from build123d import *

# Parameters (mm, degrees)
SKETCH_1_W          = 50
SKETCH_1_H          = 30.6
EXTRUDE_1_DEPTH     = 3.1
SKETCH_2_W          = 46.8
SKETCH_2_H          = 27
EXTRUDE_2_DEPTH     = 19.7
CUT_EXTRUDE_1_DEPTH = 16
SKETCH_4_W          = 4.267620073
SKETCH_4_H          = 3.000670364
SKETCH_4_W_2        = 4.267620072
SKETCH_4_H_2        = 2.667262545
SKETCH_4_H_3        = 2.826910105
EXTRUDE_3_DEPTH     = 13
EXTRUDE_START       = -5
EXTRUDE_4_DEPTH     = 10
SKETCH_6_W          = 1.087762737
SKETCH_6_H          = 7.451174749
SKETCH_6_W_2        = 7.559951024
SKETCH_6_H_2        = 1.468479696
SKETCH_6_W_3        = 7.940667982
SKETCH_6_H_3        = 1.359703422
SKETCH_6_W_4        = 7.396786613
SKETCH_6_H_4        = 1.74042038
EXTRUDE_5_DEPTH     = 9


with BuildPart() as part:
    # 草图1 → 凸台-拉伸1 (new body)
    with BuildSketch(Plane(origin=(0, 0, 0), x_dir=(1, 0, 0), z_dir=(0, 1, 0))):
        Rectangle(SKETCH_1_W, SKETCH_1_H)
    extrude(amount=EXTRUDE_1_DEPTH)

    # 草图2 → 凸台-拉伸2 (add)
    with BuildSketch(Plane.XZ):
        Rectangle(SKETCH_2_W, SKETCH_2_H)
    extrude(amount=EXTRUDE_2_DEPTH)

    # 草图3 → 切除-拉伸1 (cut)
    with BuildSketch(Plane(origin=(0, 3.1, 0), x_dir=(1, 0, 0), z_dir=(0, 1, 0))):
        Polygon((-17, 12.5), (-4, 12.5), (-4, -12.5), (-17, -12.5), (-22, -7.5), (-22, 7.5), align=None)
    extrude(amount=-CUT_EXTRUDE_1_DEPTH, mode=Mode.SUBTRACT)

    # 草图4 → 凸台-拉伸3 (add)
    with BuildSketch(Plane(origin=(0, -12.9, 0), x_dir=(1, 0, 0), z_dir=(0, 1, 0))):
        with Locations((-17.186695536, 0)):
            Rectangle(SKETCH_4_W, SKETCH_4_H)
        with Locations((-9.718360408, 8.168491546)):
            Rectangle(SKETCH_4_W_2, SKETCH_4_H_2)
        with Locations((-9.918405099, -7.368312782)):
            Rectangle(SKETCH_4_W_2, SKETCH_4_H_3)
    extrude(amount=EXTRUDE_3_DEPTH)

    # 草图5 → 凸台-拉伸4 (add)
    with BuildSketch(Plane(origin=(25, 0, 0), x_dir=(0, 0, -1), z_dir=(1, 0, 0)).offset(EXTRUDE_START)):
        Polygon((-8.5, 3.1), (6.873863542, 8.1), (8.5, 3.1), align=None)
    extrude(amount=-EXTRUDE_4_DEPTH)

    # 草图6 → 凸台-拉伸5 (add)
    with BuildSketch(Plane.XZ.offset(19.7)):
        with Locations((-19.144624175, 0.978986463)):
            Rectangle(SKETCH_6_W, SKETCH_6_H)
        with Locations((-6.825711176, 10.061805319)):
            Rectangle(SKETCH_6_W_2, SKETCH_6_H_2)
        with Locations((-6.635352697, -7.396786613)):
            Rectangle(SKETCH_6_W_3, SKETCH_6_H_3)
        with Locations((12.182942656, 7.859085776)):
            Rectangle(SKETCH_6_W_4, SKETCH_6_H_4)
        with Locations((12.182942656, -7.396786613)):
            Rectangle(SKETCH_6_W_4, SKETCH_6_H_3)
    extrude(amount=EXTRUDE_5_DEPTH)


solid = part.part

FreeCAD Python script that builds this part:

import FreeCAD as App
import Part
import Sketcher

V = App.Vector


def add_polygon(sketch, points):
    """Adds a closed chain of lines whose ends are joined by coincident constraints."""
    first, n = sketch.GeometryCount, len(points)
    for a, b in zip(points, points[1:] + points[:1]):
        sketch.addGeometry(Part.LineSegment(App.Vector(*a, 0), App.Vector(*b, 0)), False)
    for i in range(n):
        sketch.addConstraint(Sketcher.Constraint("Coincident", first + i, 2, first + (i + 1) % n, 1))

doc = App.newDocument("Part")
body = doc.addObject("PartDesign::Body", "Body")

sketch1 = body.newObject("Sketcher::SketchObject", "Sketch")
sketch1.AttachmentSupport = (doc.getObject("XZ_Plane"), [""])
sketch1.MapMode = "FlatFace"
add_polygon(sketch1, [(-25, -15), (-25, 15), (25, 15), (25, -15)])
sketch1.addConstraint(Sketcher.Constraint("Vertical", 0))
sketch1.addConstraint(Sketcher.Constraint("Horizontal", 1))
sketch1.addConstraint(Sketcher.Constraint("Vertical", 2))
sketch1.addConstraint(Sketcher.Constraint("Horizontal", 3))
sketch1.addConstraint(Sketcher.Constraint("Symmetric", 0, 2, 2, 2, -1, 1))
sketch1.addConstraint(Sketcher.Constraint("DistanceX", 1, 1, 1, 2, 50.0))
sketch1.addConstraint(Sketcher.Constraint("DistanceY", 0, 1, 0, 2, 30.6))
pad1 = body.newObject("PartDesign::Pad", "Pad")
pad1.Profile = sketch1
pad1.Length = 3.1
pad1.Reversed = True

sketch2 = body.newObject("Sketcher::SketchObject", "Sketch001")
sketch2.AttachmentSupport = (doc.getObject("XZ_Plane"), [""])
sketch2.MapMode = "FlatFace"
add_polygon(sketch2, [(-23, 14), (-23, -14), (23, -14), (23, 14)])
sketch2.addConstraint(Sketcher.Constraint("Vertical", 0))
sketch2.addConstraint(Sketcher.Constraint("Horizontal", 1))
sketch2.addConstraint(Sketcher.Constraint("Vertical", 2))
sketch2.addConstraint(Sketcher.Constraint("Horizontal", 3))
sketch2.addConstraint(Sketcher.Constraint("Symmetric", 0, 2, 2, 2, -1, 1))
sketch2.addConstraint(Sketcher.Constraint("DistanceY", 0, 2, 0, 1, 27.0))
sketch2.addConstraint(Sketcher.Constraint("DistanceX", 1, 1, 1, 2, 46.8))
pad2 = body.newObject("PartDesign::Pad", "Pad001")
pad2.Profile = sketch2
pad2.Length = 19.7

sketch3 = body.newObject("Sketcher::SketchObject", "Sketch002")
sketch3.AttachmentSupport = (doc.getObject("XZ_Plane"), [""])
sketch3.MapMode = "FlatFace"
sketch3.AttachmentOffset = App.Placement(V(0, 0, -3.1), App.Rotation())
add_polygon(sketch3, [(-4, -12), (-17, -12), (-22, -8), (-22, 8), (-17, 12), (-4, 12)])
sketch3.addConstraint(Sketcher.Constraint("Horizontal", 0))
sketch3.addConstraint(Sketcher.Constraint("Vertical", 2))
sketch3.addConstraint(Sketcher.Constraint("Horizontal", 4))
sketch3.addConstraint(Sketcher.Constraint("Vertical", 5))
sketch3.addConstraint(Sketcher.Constraint("Symmetric", 0, 2, 3, 2, -1))
sketch3.addConstraint(Sketcher.Constraint("Perpendicular", 1, 3))
sketch3.addConstraint(Sketcher.Constraint("Equal", 1, 3))
sketch3.addConstraint(Sketcher.Constraint("DistanceX", 0, 2, 0, 1, 13.0))
sketch3.addConstraint(Sketcher.Constraint("DistanceY", 2, 1, 2, 2, 15.0))
sketch3.addConstraint(Sketcher.Constraint("DistanceY", 5, 2, 5, 1, 25.0))
sketch3.addConstraint(Sketcher.Constraint("DistanceX", 0, 2, -1, 1, 17.0))
pocket1 = body.newObject("PartDesign::Pocket", "Pocket")
pocket1.Profile = sketch3
pocket1.Length = 16
pocket1.Reversed = True

sketch4 = body.newObject("Sketcher::SketchObject", "Sketch003")
sketch4.AttachmentSupport = (doc.getObject("XZ_Plane"), [""])
sketch4.MapMode = "FlatFace"
sketch4.AttachmentOffset = App.Placement(V(0, 0, 12.9), App.Rotation())
add_polygon(sketch4, [(-19.3, -1.5), (-19.3, 1.5), (-15.1, 1.5), (-15.1, -1.5)])
add_polygon(sketch4, [(-11.9, -9.5), (-11.9, -6.8), (-7.6, -6.8), (-7.6, -9.5)])
add_polygon(sketch4, [(-12.1, 6), (-12.1, 8.8), (-7.8, 8.8), (-7.8, 6)])
sketch4.addConstraint(Sketcher.Constraint("Vertical", 0))
sketch4.addConstraint(Sketcher.Constraint("Horizontal", 1))
sketch4.addConstraint(Sketcher.Constraint("Vertical", 2))
sketch4.addConstraint(Sketcher.Constraint("Horizontal", 3))
sketch4.addConstraint(Sketcher.Constraint("Vertical", 4))
sketch4.addConstraint(Sketcher.Constraint("Horizontal", 5))
sketch4.addConstraint(Sketcher.Constraint("Vertical", 6))
sketch4.addConstraint(Sketcher.Constraint("Horizontal", 7))
sketch4.addConstraint(Sketcher.Constraint("Vertical", 8))
sketch4.addConstraint(Sketcher.Constraint("Horizontal", 9))
sketch4.addConstraint(Sketcher.Constraint("Vertical", 10))
sketch4.addConstraint(Sketcher.Constraint("Horizontal", 11))
sketch4.addConstraint(Sketcher.Constraint("Equal", 3, 5))
sketch4.addConstraint(Sketcher.Constraint("Equal", 7, 9))
sketch4.addConstraint(Sketcher.Constraint("DistanceX", 1, 1, 1, 2, 4.26762))
sketch4.addConstraint(Sketcher.Constraint("DistanceY", 0, 1, 0, 2, 3.00067))
sketch4.addConstraint(Sketcher.Constraint("DistanceY", 8, 1, 8, 2, 2.82691))
sketch4.addConstraint(Sketcher.Constraint("DistanceY", 4, 1, 4, 2, 2.667263))
sketch4.addConstraint(Sketcher.Constraint("DistanceX", 4, 2, -1, 1, 11.85217))
sketch4.addConstraint(Sketcher.Constraint("DistanceY", 4, 2, -1, 1, 6.83486))
sketch4.addConstraint(Sketcher.Constraint("DistanceY", 6, 2, 1, 2, 11.002458))
sketch4.addConstraint(Sketcher.Constraint("DistanceX", 1, 2, 8, 2, 3.00067))
sketch4.addConstraint(Sketcher.Constraint("DistanceY", 4, 2, 8, 2, 15.616628))
sketch4.addConstraint(Sketcher.Constraint("DistanceX", 0, 2, -1, 1, 19.320506))
pad3 = body.newObject("PartDesign::Pad", "Pad002")
pad3.Profile = sketch4
pad3.Length = 13
pad3.Reversed = True

sketch5 = body.newObject("Sketcher::SketchObject", "Sketch004")
sketch5.AttachmentSupport = (doc.getObject("YZ_Plane"), [""])
sketch5.MapMode = "FlatFace"
sketch5.AttachmentOffset = App.Placement(V(0, 0, 20), App.Rotation())
add_polygon(sketch5, [(8, -7), (3, 8), (3, -8)])
sketch5.addConstraint(Sketcher.Constraint("Vertical", 1))
sketch5.addConstraint(Sketcher.Constraint("Perpendicular", 0, 2))
sketch5.addConstraint(Sketcher.Constraint("DistanceY", 1, 2, 1, 1, 17.0))
sketch5.addConstraint(Sketcher.Constraint("DistanceX", 1, 2, 2, 2, 5.0))
sketch5.addConstraint(Sketcher.Constraint("DistanceX", -1, 1, 0, 2, 3.1))
sketch5.addConstraint(Sketcher.Constraint("DistanceY", -1, 1, 0, 2, 8.5))
pad4 = body.newObject("PartDesign::Pad", "Pad003")
pad4.Profile = sketch5
pad4.Length = 10
pad4.Reversed = True

sketch6 = body.newObject("Sketcher::SketchObject", "Sketch005")
sketch6.AttachmentSupport = (doc.getObject("XZ_Plane"), [""])
sketch6.MapMode = "FlatFace"
sketch6.AttachmentOffset = App.Placement(V(0, 0, 19.7), App.Rotation())
add_polygon(sketch6, [(-19.7, 4.7), (-19.7, -2.7), (-18.6, -2.7), (-18.6, 4.7)])
add_polygon(sketch6, [(-10.6, 10.8), (-10.6, 9.3), (-3, 9.3), (-3, 10.8)])
add_polygon(sketch6, [(-10.6, -6.7), (-10.6, -8.1), (-2.7, -8.1), (-2.7, -6.7)])
add_polygon(sketch6, [(8.5, 8.7), (8.5, 7), (15.9, 7), (15.9, 8.7)])
add_polygon(sketch6, [(8.5, -6.7), (8.5, -8.1), (15.9, -8.1), (15.9, -6.7)])
sketch6.addConstraint(Sketcher.Constraint("Vertical", 0))
sketch6.addConstraint(Sketcher.Constraint("Horizontal", 1))
sketch6.addConstraint(Sketcher.Constraint("Vertical", 2))
sketch6.addConstraint(Sketcher.Constraint("Horizontal", 3))
sketch6.addConstraint(Sketcher.Constraint("Vertical", 4))
sketch6.addConstraint(Sketcher.Constraint("Horizontal", 5))
sketch6.addConstraint(Sketcher.Constraint("Vertical", 6))
sketch6.addConstraint(Sketcher.Constraint("Horizontal", 7))
sketch6.addConstraint(Sketcher.Constraint("Vertical", 8))
sketch6.addConstraint(Sketcher.Constraint("Horizontal", 9))
sketch6.addConstraint(Sketcher.Constraint("Vertical", 10))
sketch6.addConstraint(Sketcher.Constraint("Horizontal", 11))
sketch6.addConstraint(Sketcher.Constraint("Vertical", 12))
sketch6.addConstraint(Sketcher.Constraint("Horizontal", 13))
sketch6.addConstraint(Sketcher.Constraint("Vertical", 14))
sketch6.addConstraint(Sketcher.Constraint("Horizontal", 15))
sketch6.addConstraint(Sketcher.Constraint("Vertical", 16))
sketch6.addConstraint(Sketcher.Constraint("Horizontal", 17))
sketch6.addConstraint(Sketcher.Constraint("Vertical", 18))
sketch6.addConstraint(Sketcher.Constraint("Horizontal", 19))
sketch6.addConstraint(Sketcher.Constraint("Horizontal", 9, 2, 16, 2))
sketch6.addConstraint(Sketcher.Constraint("Horizontal", 11, 2, 18, 2))
sketch6.addConstraint(Sketcher.Constraint("Vertical", 7, 2, 8, 2))
sketch6.addConstraint(Sketcher.Constraint("Vertical", 15, 2, 16, 2))
sketch6.addConstraint(Sketcher.Constraint("Vertical", 14, 2, 17, 2))
sketch6.addConstraint(Sketcher.Constraint("DistanceX", 5, 1, 5, 2, 7.559951))
sketch6.addConstraint(Sketcher.Constraint("DistanceY", 4, 2, 4, 1, 1.46848))
sketch6.addConstraint(Sketcher.Constraint("DistanceY", 12, 2, 12, 1, 1.74042))
sketch6.addConstraint(Sketcher.Constraint("DistanceY", 0, 2, -1, 1, 2.746601))
sketch6.addConstraint(Sketcher.Constraint("DistanceY", 10, 2, 5, 2, 16.0445))
sketch6.addConstraint(Sketcher.Constraint("DistanceX", 1, 1, 1, 2, 1.087763))
sketch6.addConstraint(Sketcher.Constraint("DistanceX", 9, 1, 9, 2, 7.940668))
sketch6.addConstraint(Sketcher.Constraint("DistanceX", 13, 1, 13, 2, 7.396787))
sketch6.addConstraint(Sketcher.Constraint("DistanceY", 0, 2, 0, 1, 7.451175))
sketch6.addConstraint(Sketcher.Constraint("DistanceY", 8, 2, 8, 1, 1.359703))
sketch6.addConstraint(Sketcher.Constraint("DistanceY", 8, 2, -1, 1, 8.076638))
sketch6.addConstraint(Sketcher.Constraint("DistanceX", 9, 2, -1, 1, 2.665019))
sketch6.addConstraint(Sketcher.Constraint("DistanceX", -1, 1, 12, 2, 8.484549))
sketch6.addConstraint(Sketcher.Constraint("DistanceX", 3, 2, 4, 2, 9.082819))
sketch6.addConstraint(Sketcher.Constraint("DistanceY", 12, 2, 5, 2, 2.33869))
pad5 = body.newObject("PartDesign::Pad", "Pad004")
pad5.Profile = sketch6
pad5.Length = 9

doc.recompute()
